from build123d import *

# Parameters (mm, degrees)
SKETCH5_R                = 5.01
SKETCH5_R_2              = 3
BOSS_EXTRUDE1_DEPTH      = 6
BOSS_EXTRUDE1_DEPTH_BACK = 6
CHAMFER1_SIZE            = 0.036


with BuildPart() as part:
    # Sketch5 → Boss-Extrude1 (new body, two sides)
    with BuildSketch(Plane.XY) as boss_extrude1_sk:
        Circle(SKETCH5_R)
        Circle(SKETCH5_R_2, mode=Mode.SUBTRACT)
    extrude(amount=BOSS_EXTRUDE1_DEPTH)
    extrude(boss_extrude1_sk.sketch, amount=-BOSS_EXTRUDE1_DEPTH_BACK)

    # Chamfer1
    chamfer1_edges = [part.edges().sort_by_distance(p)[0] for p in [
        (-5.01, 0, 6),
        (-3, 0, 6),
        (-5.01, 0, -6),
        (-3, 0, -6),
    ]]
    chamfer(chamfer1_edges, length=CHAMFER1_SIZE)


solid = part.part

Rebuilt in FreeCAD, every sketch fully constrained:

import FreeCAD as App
import Part
import Sketcher

V = App.Vector


def edges_at(feature, points):
    """Names of the edges that pass closest to the given points."""
    edges = feature.Shape.Edges
    near = lambda p: min(range(len(edges)), key=lambda i: edges[i].distToShape(Part.Vertex(*p))[0])
    return sorted({f"Edge{near(p) + 1}" for p in points})

doc = App.newDocument("Part")
params = doc.addObject("Spreadsheet::Sheet", "Params")
for row, (alias, value) in enumerate([
    ("sketch1_diameter", "6 mm"),
    ("sketch1_diameter2", "10.02 mm"),
    ("pad1_length", "6 mm"),
    ("pad1_length2", "6 mm"),
    ("chamfer_size", "0.036 mm"),
], start=1):
    params.set(f"A{row}", alias)
    params.set(f"B{row}", "=" + value)
    params.setAlias(f"B{row}", alias)

body = doc.addObject("PartDesign::Body", "Body")

# Sketch on XY plane
sketch1 = doc.addObject("Sketcher::SketchObject", "Sketch")
body.addObject(sketch1)
sketch1.AttachmentSupport = (doc.XY_Plane, [""])
sketch1.MapMode = "FlatFace"
sketch1.addGeometry([
    Part.Circle(V(0, 0, 0), V(0, 0, 1), 5.01),
    Part.Circle(V(0, 0, 0), V(0, 0, 1), 3),
], False)
sketch1.addConstraint([
    Sketcher.Constraint("Coincident", 0, 3, -1, 1),
    Sketcher.Constraint("Coincident", 1, 3, -1, 1),
    Sketcher.Constraint("Diameter", 1, 6.0),
    Sketcher.Constraint("Diameter", 0, 10.02),
])
sketch1.setExpression("Constraints[2]", "Params.sketch1_diameter")
sketch1.setExpression("Constraints[3]", "Params.sketch1_diameter2")
pad1 = doc.addObject("PartDesign::Pad", "Pad")
body.addObject(pad1)
pad1.Profile = sketch1
pad1.Type = "TwoLengths"
pad1.setExpression("Length", "Params.pad1_length")
pad1.setExpression("Length2", "Params.pad1_length2")
doc.recompute()

chamfer = doc.addObject("PartDesign::Chamfer", "Chamfer")
body.addObject(chamfer)
chamfer.Base = (pad1, edges_at(pad1, [
    (-5.01, 0, 6),
    (-3, 0, 6),
    (-5.01, 0, -6),
    (-3, 0, -6),
]))
chamfer.setExpression("Size", "Params.chamfer_size")

doc.recompute()
